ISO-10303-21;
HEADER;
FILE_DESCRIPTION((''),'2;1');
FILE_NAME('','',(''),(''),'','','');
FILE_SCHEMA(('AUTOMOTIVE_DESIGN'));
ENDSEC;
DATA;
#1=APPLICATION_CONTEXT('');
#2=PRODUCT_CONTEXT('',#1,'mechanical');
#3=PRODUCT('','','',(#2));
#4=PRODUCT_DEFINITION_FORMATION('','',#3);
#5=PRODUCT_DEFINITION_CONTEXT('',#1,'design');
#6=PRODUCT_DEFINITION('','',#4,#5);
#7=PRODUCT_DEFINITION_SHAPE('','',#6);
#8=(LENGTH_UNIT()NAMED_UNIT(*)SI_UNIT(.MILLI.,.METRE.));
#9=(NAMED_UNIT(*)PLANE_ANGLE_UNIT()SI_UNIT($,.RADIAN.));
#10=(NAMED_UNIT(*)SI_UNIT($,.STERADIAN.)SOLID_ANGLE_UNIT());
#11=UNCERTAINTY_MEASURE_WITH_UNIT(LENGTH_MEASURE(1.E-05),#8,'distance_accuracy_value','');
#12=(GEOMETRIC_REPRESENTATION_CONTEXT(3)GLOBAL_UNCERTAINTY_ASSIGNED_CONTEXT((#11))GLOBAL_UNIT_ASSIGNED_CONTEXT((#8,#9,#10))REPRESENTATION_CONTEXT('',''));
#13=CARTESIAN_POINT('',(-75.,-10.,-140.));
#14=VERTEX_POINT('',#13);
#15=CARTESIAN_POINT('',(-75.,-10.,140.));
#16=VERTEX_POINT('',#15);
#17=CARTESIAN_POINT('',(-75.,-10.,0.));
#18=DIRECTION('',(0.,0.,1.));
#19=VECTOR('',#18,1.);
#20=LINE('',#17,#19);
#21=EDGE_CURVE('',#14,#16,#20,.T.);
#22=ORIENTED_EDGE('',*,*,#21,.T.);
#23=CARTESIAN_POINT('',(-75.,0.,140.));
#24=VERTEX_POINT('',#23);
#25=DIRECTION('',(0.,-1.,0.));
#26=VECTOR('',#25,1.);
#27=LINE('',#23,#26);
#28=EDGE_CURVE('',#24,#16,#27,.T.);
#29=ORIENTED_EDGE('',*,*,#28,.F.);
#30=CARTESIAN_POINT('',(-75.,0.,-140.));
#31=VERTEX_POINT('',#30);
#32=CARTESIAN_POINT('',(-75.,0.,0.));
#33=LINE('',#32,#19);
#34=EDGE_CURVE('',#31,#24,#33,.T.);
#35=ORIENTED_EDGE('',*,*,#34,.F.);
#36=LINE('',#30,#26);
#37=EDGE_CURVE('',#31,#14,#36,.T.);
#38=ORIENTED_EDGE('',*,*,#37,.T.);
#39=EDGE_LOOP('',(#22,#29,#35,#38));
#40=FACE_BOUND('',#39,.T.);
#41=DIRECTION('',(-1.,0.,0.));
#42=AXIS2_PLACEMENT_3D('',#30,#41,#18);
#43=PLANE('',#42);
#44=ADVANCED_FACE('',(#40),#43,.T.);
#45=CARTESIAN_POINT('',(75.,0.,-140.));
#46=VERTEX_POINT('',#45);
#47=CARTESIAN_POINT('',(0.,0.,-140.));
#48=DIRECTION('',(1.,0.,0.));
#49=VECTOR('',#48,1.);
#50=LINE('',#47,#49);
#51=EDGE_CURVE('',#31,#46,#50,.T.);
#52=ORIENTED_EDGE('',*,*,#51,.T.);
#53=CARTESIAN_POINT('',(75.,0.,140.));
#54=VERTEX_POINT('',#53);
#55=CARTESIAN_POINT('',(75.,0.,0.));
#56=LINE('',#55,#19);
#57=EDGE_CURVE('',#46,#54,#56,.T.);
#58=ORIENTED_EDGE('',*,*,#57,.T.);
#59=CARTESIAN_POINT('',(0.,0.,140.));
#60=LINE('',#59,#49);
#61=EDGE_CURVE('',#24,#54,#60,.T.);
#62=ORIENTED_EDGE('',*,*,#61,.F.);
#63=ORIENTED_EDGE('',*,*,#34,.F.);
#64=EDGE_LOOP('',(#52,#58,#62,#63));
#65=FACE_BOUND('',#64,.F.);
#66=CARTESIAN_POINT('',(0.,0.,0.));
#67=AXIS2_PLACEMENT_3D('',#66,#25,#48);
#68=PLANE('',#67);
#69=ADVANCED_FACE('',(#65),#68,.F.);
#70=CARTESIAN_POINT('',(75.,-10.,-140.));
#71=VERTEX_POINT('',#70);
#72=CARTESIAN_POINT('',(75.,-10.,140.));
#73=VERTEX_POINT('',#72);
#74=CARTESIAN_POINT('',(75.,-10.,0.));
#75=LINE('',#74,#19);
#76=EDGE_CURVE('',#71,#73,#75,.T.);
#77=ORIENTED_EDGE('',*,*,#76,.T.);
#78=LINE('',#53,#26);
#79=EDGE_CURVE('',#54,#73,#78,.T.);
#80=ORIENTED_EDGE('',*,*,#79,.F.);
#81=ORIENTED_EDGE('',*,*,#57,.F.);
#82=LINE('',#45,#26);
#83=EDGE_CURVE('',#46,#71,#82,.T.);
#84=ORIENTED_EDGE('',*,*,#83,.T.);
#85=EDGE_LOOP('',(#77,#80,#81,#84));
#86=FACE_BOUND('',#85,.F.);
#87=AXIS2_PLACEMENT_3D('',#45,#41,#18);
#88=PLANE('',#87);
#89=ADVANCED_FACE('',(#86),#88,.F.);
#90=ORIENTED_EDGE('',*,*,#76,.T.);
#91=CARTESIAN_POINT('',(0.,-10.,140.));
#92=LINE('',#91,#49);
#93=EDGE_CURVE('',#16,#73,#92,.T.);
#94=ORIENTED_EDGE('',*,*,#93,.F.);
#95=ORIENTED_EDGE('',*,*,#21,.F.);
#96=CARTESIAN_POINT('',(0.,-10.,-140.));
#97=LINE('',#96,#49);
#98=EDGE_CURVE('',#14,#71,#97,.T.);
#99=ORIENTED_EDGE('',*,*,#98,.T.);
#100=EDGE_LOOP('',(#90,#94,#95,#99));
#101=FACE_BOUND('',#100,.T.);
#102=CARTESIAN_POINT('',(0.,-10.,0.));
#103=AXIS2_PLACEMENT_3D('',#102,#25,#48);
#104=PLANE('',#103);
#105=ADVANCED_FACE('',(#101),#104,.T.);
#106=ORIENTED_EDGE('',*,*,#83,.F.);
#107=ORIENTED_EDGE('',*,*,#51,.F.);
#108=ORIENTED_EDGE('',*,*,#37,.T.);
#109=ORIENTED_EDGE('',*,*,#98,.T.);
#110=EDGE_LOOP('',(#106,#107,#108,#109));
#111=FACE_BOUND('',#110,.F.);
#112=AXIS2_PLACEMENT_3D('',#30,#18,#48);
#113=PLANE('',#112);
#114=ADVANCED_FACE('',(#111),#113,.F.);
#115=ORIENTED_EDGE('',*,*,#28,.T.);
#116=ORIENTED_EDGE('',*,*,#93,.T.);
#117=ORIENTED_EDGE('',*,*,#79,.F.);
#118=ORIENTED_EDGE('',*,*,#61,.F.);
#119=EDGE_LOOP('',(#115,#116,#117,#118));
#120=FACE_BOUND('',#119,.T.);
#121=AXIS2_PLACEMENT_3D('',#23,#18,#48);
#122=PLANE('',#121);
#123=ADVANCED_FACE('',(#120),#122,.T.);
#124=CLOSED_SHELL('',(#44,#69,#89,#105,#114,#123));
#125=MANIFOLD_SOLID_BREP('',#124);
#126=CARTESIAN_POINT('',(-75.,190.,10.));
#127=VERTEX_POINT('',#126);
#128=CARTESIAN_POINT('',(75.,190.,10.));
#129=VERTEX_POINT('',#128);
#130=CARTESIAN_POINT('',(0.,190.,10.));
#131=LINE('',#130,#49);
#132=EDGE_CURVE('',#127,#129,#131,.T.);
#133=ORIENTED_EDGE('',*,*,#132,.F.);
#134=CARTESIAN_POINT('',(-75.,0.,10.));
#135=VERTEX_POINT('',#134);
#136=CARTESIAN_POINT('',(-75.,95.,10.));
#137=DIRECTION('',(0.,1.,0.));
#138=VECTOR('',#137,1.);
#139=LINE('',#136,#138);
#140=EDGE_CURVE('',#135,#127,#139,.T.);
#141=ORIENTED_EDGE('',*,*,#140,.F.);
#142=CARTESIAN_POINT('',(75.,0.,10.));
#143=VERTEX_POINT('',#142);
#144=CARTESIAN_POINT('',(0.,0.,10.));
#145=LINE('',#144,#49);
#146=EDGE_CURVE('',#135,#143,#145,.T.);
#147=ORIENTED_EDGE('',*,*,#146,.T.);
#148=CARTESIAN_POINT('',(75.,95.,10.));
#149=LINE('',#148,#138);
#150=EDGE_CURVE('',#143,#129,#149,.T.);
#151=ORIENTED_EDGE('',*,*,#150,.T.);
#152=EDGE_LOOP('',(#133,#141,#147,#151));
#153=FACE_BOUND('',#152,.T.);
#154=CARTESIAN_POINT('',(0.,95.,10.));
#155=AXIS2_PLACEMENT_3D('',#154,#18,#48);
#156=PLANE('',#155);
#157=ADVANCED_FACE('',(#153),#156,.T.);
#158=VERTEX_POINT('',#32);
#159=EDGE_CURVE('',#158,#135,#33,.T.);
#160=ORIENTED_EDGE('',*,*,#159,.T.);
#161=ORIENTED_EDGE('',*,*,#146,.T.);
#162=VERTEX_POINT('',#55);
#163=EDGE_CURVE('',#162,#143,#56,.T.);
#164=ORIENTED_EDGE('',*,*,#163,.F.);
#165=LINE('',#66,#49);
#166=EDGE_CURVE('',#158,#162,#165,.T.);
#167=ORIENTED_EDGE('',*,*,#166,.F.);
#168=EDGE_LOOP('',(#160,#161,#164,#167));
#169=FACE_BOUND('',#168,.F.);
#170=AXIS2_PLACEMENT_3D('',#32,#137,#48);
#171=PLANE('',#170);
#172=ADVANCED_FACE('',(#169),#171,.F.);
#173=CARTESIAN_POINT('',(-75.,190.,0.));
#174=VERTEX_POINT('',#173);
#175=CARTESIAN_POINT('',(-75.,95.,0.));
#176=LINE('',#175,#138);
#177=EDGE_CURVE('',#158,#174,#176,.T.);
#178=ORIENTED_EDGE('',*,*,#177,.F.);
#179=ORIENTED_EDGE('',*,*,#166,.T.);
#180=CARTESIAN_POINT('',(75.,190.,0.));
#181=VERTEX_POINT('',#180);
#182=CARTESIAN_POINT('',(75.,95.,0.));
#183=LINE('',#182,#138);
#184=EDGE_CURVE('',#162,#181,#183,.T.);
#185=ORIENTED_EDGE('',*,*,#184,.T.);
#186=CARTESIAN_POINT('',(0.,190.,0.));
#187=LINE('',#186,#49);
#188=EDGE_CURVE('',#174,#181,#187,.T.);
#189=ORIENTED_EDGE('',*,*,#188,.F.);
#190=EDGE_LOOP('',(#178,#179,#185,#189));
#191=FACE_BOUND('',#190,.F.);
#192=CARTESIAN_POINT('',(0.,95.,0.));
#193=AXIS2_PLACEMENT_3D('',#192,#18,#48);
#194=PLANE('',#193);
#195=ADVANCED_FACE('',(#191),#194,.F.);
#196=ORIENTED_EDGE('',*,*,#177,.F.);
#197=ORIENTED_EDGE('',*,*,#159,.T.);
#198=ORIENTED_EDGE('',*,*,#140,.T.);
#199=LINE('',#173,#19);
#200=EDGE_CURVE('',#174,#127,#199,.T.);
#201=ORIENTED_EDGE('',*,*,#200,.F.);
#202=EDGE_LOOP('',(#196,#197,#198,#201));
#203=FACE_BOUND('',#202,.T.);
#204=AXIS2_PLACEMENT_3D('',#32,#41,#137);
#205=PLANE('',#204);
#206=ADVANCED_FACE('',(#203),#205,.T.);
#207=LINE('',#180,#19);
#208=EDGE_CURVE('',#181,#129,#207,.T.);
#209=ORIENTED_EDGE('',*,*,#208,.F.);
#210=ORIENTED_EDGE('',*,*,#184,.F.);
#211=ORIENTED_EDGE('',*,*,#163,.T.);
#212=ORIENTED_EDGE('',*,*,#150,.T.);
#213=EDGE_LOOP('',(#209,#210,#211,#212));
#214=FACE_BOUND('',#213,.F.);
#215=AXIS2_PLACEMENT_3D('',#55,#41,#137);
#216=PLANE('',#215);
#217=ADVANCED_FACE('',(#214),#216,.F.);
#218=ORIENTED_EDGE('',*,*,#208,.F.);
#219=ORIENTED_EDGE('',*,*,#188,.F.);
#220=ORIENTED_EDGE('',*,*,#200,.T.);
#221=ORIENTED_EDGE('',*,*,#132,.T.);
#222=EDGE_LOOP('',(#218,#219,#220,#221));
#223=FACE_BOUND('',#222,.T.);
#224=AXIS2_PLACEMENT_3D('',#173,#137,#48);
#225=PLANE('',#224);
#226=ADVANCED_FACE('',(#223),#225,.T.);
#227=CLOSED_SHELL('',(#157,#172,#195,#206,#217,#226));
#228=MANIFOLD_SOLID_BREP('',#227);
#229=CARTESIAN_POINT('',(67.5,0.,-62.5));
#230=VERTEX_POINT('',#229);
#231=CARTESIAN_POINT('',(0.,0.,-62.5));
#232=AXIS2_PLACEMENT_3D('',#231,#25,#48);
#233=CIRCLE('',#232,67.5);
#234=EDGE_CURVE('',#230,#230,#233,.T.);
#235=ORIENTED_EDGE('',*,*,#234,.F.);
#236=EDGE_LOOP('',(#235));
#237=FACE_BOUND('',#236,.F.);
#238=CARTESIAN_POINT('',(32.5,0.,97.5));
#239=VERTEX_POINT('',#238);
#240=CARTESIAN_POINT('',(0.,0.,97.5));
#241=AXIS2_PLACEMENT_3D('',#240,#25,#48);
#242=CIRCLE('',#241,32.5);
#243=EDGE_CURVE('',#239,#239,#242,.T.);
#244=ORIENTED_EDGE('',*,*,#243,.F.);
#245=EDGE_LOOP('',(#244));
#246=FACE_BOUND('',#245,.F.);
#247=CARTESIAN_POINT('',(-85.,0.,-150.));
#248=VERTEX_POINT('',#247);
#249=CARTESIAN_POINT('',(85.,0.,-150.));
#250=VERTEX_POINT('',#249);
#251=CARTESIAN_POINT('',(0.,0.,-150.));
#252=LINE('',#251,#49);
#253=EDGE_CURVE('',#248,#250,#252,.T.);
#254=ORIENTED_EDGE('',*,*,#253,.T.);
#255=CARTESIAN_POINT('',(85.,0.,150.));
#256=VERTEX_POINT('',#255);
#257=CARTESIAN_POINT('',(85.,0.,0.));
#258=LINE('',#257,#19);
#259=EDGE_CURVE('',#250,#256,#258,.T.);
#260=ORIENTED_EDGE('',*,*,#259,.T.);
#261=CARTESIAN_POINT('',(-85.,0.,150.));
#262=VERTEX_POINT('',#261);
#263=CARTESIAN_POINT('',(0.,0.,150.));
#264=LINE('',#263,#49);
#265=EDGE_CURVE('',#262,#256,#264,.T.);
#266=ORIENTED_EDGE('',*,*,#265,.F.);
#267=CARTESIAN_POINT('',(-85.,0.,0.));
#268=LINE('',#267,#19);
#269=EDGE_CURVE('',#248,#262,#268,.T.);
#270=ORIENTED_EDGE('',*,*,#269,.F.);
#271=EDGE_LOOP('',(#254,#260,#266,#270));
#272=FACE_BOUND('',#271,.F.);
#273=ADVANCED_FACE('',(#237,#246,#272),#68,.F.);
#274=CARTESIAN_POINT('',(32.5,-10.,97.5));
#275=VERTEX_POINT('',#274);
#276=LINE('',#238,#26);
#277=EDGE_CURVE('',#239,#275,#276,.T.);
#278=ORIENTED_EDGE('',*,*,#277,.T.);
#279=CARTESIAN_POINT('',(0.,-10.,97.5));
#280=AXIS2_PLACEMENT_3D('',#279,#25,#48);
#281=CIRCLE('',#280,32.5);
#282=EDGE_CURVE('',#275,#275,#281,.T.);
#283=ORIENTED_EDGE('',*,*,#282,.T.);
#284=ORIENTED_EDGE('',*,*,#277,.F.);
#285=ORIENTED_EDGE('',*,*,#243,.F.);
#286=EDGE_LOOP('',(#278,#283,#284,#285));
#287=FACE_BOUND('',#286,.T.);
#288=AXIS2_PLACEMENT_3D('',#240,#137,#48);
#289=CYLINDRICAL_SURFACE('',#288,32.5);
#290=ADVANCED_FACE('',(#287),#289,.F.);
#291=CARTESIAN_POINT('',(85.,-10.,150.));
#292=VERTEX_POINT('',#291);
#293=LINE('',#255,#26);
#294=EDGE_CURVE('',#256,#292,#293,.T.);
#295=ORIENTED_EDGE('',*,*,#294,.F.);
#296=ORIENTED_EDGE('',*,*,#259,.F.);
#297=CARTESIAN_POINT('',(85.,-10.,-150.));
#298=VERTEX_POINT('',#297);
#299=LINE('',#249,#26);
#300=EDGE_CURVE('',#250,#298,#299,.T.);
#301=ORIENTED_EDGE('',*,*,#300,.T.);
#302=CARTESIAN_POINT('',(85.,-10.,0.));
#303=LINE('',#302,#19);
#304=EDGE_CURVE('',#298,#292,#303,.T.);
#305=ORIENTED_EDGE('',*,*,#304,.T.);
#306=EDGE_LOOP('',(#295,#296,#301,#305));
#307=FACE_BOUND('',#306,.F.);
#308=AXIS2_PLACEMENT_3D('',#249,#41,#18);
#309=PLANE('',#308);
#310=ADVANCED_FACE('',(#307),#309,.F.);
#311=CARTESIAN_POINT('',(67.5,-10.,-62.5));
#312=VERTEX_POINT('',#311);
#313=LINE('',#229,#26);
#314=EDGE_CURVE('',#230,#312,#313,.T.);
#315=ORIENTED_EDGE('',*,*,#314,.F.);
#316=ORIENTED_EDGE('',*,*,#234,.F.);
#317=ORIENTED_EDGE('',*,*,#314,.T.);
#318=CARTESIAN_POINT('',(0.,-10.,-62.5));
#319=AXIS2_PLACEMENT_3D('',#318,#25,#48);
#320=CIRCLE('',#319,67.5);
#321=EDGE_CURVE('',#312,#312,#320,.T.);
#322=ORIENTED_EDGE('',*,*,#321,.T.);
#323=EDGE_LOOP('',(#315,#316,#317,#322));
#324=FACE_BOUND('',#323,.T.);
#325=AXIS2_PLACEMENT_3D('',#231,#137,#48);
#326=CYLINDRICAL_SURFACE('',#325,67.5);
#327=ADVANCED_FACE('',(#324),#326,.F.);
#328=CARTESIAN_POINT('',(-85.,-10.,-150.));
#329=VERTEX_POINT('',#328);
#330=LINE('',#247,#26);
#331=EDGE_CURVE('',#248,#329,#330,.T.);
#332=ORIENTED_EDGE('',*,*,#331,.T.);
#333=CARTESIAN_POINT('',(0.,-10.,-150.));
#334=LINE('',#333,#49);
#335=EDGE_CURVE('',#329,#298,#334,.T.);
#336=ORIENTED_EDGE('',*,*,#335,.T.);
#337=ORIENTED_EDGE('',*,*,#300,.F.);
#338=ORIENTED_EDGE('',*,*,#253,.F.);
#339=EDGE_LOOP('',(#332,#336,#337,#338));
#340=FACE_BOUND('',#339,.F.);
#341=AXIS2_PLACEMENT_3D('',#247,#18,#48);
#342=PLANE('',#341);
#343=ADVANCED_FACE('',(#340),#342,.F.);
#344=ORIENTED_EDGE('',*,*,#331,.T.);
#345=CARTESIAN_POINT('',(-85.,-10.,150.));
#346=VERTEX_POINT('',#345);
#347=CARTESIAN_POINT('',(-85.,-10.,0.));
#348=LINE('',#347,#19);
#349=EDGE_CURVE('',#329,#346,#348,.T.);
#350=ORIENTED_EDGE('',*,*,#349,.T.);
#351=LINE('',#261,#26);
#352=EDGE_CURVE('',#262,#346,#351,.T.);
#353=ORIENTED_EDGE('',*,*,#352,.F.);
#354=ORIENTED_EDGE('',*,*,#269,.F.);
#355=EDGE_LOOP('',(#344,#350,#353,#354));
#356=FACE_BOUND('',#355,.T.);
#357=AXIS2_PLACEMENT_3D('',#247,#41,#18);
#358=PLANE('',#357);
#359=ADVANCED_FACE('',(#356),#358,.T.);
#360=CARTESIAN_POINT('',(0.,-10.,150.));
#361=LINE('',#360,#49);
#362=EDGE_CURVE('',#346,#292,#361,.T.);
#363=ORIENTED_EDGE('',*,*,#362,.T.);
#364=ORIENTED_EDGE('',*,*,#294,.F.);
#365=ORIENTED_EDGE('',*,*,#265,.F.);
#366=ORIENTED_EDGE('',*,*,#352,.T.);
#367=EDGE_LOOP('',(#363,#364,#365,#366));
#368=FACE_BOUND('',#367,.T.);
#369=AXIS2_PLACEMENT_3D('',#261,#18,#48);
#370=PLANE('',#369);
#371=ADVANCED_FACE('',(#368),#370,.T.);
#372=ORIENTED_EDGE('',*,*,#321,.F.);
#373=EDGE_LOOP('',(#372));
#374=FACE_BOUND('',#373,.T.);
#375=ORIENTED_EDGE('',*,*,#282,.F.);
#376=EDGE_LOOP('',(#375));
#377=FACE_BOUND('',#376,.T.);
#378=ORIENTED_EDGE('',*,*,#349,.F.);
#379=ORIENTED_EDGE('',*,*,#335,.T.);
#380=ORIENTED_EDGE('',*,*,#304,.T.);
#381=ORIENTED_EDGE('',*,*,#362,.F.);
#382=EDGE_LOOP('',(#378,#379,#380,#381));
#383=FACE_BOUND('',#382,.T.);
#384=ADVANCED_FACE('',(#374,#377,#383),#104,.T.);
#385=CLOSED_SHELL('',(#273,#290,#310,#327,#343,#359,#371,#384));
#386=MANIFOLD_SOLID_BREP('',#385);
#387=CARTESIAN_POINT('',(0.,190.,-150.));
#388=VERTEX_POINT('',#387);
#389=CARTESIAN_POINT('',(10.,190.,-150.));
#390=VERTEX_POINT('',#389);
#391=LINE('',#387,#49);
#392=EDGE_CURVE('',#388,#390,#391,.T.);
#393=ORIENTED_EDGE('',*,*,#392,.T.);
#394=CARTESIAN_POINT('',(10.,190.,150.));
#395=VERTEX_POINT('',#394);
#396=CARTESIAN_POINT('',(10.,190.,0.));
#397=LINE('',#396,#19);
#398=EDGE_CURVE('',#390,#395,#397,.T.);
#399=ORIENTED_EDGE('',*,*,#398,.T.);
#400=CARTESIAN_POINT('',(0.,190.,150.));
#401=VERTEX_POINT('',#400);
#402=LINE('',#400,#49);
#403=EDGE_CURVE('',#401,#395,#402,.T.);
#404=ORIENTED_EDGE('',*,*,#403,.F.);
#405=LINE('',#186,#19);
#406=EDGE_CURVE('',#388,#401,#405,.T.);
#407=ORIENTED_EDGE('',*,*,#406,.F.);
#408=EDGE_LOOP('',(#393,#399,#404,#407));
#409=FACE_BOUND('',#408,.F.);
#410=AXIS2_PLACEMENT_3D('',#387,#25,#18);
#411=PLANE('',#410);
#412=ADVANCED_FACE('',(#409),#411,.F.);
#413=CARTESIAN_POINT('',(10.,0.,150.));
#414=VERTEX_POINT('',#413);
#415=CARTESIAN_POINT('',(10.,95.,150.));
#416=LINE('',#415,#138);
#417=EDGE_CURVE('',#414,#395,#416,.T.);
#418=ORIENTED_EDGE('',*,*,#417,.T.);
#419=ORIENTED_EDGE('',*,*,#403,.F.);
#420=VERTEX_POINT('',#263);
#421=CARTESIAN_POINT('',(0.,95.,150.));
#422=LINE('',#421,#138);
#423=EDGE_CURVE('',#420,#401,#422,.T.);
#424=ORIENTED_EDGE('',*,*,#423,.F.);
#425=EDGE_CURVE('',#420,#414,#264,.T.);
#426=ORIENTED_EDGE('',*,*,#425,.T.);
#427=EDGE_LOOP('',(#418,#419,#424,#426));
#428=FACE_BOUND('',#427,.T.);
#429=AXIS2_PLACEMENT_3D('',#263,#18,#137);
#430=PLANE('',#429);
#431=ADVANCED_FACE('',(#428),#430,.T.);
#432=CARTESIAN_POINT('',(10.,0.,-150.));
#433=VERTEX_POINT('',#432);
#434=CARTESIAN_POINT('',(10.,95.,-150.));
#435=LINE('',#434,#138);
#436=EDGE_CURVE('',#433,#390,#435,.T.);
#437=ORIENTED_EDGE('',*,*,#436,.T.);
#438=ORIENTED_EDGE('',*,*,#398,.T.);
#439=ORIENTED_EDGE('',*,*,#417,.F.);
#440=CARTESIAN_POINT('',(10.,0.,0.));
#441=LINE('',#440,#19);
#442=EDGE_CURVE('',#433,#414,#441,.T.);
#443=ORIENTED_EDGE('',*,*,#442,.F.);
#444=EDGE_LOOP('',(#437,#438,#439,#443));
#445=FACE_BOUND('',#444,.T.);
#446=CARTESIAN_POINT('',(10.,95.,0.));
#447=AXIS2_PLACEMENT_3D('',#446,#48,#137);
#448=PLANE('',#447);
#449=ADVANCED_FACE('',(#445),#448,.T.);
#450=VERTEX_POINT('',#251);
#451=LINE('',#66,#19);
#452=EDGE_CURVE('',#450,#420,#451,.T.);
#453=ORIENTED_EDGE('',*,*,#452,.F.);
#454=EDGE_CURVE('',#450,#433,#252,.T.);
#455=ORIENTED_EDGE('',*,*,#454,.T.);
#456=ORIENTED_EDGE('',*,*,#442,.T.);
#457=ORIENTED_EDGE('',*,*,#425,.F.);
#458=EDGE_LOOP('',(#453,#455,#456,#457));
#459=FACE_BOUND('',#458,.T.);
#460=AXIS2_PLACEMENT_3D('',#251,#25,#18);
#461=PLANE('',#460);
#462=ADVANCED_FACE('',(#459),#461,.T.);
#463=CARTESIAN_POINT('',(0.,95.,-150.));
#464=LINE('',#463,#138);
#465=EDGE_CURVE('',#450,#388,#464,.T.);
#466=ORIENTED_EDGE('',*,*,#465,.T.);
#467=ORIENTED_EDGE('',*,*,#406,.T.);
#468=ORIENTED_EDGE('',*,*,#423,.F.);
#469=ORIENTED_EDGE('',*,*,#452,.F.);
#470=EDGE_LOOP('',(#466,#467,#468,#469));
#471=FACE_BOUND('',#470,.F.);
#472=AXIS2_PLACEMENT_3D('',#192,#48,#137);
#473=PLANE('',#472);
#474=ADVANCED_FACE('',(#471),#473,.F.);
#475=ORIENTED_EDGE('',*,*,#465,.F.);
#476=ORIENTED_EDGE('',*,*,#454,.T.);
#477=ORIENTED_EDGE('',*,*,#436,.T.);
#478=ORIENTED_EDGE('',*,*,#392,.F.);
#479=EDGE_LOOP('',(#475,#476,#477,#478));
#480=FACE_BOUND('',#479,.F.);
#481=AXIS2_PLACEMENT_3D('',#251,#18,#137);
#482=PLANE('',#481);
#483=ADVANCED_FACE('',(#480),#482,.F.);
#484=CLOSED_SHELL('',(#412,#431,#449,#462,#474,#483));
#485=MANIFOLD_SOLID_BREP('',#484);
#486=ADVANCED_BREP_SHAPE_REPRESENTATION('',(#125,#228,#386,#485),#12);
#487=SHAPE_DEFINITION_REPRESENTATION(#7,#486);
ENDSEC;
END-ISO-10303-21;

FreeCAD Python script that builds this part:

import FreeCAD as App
import Part
import Sketcher
from FreeCAD import Vector
Q = App.Units.Quantity


def add_polygon(sketch, points):
    """Adds a closed chain of lines whose ends are joined by coincident constraints."""
    first, n = sketch.GeometryCount, len(points)
    for a, b in zip(points, points[1:] + points[:1]):
        sketch.addGeometry(Part.LineSegment(App.Vector(*a, 0), App.Vector(*b, 0)), False)
    for i in range(n):
        sketch.addConstraint(Sketcher.Constraint("Coincident", first + i, 2, first + (i + 1) % n, 1))

doc = App.newDocument("Part")
body = doc.addObject("PartDesign::Body", "Body")

# Sketch on XZ plane
sketch1 = doc.addObject("Sketcher::SketchObject", "Sketch")
body.addObject(sketch1)
sketch1.AttachmentSupport = (doc.XZ_Plane, [""])
sketch1.MapMode = "FlatFace"
add_polygon(sketch1, [(-85, 150), (-85, -150), (85, -150), (85, 150)])  # lines 0-3
sketch1.addGeometry(Part.Circle(Vector(0, -62.5, 0), Vector(0, 0, 1), 67.5), False)  # 4
sketch1.addGeometry(Part.Circle(Vector(0, 97.5, 0), Vector(0, 0, 1), 32.5), False)  # 5
sketch1.addConstraint(Sketcher.Constraint("Vertical", 0))
sketch1.addConstraint(Sketcher.Constraint("Horizontal", 1))
sketch1.addConstraint(Sketcher.Constraint("Vertical", 2))
sketch1.addConstraint(Sketcher.Constraint("Horizontal", 3))
sketch1.addConstraint(Sketcher.Constraint("Symmetric", 0, 2, 2, 2, -1, 1))
sketch1.addConstraint(Sketcher.Constraint("PointOnObject", 4, 3, -2))
sketch1.addConstraint(Sketcher.Constraint("PointOnObject", 5, 3, -2))
sketch1.addConstraint(Sketcher.Constraint("Diameter", 4, Q("135 mm")))
sketch1.addConstraint(Sketcher.Constraint("Diameter", 5, Q("65 mm")))
sketch1.addConstraint(Sketcher.Constraint("DistanceX", 1, 1, 1, 2, Q("170 mm")))
sketch1.addConstraint(Sketcher.Constraint("DistanceY", 0, 2, 0, 1, Q("300 mm")))
sketch1.addConstraint(Sketcher.Constraint("DistanceY", 4, 3, 5, 3, Q("160 mm")))
sketch1.addConstraint(Sketcher.Constraint("DistanceY", 4, 3, -1, 1, Q("62.5 mm")))
pad1 = doc.addObject("PartDesign::Pad", "Pad")
body.addObject(pad1)
pad1.Profile = sketch1
pad1.Length = 10
body2 = doc.addObject("PartDesign::Body", "Body001")

# Sketch on XY plane
sketch2 = doc.addObject("Sketcher::SketchObject", "Sketch001")
body2.addObject(sketch2)
sketch2.AttachmentSupport = (doc.getObject("XY_Plane001"), [""])
sketch2.MapMode = "FlatFace"
add_polygon(sketch2, [(-75, 190), (-75, 0), (75, 0), (75, 190)])  # lines 0-3
sketch2.addConstraint(Sketcher.Constraint("Vertical", 0))
sketch2.addConstraint(Sketcher.Constraint("Horizontal", 1))
sketch2.addConstraint(Sketcher.Constraint("Vertical", 2))
sketch2.addConstraint(Sketcher.Constraint("Horizontal", 3))
sketch2.addConstraint(Sketcher.Constraint("Symmetric", 0, 2, 1, 2, -1, 1))
sketch2.addConstraint(Sketcher.Constraint("DistanceX", 1, 1, 1, 2, Q("150 mm")))
sketch2.addConstraint(Sketcher.Constraint("DistanceY", 0, 2, 0, 1, Q("190 mm")))
pad2 = doc.addObject("PartDesign::Pad", "Pad001")
body2.addObject(pad2)
pad2.Profile = sketch2
pad2.Length = 10
body3 = doc.addObject("PartDesign::Body", "Body002")

# Sketch on YZ plane
sketch3 = doc.addObject("Sketcher::SketchObject", "Sketch002")
body3.addObject(sketch3)
sketch3.AttachmentSupport = (doc.getObject("YZ_Plane002"), [""])
sketch3.MapMode = "FlatFace"
add_polygon(sketch3, [(0, 150), (0, -150), (190, -150), (190, 150)])  # lines 0-3
sketch3.addConstraint(Sketcher.Constraint("Vertical", 0))
sketch3.addConstraint(Sketcher.Constraint("Horizontal", 1))
sketch3.addConstraint(Sketcher.Constraint("Vertical", 2))
sketch3.addConstraint(Sketcher.Constraint("Horizontal", 3))
sketch3.addConstraint(Sketcher.Constraint("Symmetric", 0, 2, 3, 2, -1, 1))
sketch3.addConstraint(Sketcher.Constraint("DistanceX", 1, 1, 1, 2, Q("190 mm")))
sketch3.addConstraint(Sketcher.Constraint("DistanceY", 0, 2, 0, 1, Q("300 mm")))
pad3 = doc.addObject("PartDesign::Pad", "Pad002")
body3.addObject(pad3)
pad3.Profile = sketch3
pad3.Length = 10
body4 = doc.addObject("PartDesign::Body", "Body003")

# Sketch on XZ plane
sketch4 = doc.addObject("Sketcher::SketchObject", "Sketch003")
body4.addObject(sketch4)
sketch4.AttachmentSupport = (doc.getObject("XZ_Plane003"), [""])
sketch4.MapMode = "FlatFace"
add_polygon(sketch4, [(-75, 140), (-75, -140), (75, -140), (75, 140)])  # lines 0-3
sketch4.addConstraint(Sketcher.Constraint("Vertical", 0))
sketch4.addConstraint(Sketcher.Constraint("Horizontal", 1))
sketch4.addConstraint(Sketcher.Constraint("Vertical", 2))
sketch4.addConstraint(Sketcher.Constraint("Horizontal", 3))
sketch4.addConstraint(Sketcher.Constraint("Symmetric", 0, 2, 2, 2, -1, 1))
sketch4.addConstraint(Sketcher.Constraint("DistanceX", 1, 1, 1, 2, Q("150 mm")))
sketch4.addConstraint(Sketcher.Constraint("DistanceY", 0, 2, 0, 1, Q("280 mm")))
pad4 = doc.addObject("PartDesign::Pad", "Pad003")
body4.addObject(pad4)
pad4.Profile = sketch4
pad4.Length = 10

doc.recompute()
